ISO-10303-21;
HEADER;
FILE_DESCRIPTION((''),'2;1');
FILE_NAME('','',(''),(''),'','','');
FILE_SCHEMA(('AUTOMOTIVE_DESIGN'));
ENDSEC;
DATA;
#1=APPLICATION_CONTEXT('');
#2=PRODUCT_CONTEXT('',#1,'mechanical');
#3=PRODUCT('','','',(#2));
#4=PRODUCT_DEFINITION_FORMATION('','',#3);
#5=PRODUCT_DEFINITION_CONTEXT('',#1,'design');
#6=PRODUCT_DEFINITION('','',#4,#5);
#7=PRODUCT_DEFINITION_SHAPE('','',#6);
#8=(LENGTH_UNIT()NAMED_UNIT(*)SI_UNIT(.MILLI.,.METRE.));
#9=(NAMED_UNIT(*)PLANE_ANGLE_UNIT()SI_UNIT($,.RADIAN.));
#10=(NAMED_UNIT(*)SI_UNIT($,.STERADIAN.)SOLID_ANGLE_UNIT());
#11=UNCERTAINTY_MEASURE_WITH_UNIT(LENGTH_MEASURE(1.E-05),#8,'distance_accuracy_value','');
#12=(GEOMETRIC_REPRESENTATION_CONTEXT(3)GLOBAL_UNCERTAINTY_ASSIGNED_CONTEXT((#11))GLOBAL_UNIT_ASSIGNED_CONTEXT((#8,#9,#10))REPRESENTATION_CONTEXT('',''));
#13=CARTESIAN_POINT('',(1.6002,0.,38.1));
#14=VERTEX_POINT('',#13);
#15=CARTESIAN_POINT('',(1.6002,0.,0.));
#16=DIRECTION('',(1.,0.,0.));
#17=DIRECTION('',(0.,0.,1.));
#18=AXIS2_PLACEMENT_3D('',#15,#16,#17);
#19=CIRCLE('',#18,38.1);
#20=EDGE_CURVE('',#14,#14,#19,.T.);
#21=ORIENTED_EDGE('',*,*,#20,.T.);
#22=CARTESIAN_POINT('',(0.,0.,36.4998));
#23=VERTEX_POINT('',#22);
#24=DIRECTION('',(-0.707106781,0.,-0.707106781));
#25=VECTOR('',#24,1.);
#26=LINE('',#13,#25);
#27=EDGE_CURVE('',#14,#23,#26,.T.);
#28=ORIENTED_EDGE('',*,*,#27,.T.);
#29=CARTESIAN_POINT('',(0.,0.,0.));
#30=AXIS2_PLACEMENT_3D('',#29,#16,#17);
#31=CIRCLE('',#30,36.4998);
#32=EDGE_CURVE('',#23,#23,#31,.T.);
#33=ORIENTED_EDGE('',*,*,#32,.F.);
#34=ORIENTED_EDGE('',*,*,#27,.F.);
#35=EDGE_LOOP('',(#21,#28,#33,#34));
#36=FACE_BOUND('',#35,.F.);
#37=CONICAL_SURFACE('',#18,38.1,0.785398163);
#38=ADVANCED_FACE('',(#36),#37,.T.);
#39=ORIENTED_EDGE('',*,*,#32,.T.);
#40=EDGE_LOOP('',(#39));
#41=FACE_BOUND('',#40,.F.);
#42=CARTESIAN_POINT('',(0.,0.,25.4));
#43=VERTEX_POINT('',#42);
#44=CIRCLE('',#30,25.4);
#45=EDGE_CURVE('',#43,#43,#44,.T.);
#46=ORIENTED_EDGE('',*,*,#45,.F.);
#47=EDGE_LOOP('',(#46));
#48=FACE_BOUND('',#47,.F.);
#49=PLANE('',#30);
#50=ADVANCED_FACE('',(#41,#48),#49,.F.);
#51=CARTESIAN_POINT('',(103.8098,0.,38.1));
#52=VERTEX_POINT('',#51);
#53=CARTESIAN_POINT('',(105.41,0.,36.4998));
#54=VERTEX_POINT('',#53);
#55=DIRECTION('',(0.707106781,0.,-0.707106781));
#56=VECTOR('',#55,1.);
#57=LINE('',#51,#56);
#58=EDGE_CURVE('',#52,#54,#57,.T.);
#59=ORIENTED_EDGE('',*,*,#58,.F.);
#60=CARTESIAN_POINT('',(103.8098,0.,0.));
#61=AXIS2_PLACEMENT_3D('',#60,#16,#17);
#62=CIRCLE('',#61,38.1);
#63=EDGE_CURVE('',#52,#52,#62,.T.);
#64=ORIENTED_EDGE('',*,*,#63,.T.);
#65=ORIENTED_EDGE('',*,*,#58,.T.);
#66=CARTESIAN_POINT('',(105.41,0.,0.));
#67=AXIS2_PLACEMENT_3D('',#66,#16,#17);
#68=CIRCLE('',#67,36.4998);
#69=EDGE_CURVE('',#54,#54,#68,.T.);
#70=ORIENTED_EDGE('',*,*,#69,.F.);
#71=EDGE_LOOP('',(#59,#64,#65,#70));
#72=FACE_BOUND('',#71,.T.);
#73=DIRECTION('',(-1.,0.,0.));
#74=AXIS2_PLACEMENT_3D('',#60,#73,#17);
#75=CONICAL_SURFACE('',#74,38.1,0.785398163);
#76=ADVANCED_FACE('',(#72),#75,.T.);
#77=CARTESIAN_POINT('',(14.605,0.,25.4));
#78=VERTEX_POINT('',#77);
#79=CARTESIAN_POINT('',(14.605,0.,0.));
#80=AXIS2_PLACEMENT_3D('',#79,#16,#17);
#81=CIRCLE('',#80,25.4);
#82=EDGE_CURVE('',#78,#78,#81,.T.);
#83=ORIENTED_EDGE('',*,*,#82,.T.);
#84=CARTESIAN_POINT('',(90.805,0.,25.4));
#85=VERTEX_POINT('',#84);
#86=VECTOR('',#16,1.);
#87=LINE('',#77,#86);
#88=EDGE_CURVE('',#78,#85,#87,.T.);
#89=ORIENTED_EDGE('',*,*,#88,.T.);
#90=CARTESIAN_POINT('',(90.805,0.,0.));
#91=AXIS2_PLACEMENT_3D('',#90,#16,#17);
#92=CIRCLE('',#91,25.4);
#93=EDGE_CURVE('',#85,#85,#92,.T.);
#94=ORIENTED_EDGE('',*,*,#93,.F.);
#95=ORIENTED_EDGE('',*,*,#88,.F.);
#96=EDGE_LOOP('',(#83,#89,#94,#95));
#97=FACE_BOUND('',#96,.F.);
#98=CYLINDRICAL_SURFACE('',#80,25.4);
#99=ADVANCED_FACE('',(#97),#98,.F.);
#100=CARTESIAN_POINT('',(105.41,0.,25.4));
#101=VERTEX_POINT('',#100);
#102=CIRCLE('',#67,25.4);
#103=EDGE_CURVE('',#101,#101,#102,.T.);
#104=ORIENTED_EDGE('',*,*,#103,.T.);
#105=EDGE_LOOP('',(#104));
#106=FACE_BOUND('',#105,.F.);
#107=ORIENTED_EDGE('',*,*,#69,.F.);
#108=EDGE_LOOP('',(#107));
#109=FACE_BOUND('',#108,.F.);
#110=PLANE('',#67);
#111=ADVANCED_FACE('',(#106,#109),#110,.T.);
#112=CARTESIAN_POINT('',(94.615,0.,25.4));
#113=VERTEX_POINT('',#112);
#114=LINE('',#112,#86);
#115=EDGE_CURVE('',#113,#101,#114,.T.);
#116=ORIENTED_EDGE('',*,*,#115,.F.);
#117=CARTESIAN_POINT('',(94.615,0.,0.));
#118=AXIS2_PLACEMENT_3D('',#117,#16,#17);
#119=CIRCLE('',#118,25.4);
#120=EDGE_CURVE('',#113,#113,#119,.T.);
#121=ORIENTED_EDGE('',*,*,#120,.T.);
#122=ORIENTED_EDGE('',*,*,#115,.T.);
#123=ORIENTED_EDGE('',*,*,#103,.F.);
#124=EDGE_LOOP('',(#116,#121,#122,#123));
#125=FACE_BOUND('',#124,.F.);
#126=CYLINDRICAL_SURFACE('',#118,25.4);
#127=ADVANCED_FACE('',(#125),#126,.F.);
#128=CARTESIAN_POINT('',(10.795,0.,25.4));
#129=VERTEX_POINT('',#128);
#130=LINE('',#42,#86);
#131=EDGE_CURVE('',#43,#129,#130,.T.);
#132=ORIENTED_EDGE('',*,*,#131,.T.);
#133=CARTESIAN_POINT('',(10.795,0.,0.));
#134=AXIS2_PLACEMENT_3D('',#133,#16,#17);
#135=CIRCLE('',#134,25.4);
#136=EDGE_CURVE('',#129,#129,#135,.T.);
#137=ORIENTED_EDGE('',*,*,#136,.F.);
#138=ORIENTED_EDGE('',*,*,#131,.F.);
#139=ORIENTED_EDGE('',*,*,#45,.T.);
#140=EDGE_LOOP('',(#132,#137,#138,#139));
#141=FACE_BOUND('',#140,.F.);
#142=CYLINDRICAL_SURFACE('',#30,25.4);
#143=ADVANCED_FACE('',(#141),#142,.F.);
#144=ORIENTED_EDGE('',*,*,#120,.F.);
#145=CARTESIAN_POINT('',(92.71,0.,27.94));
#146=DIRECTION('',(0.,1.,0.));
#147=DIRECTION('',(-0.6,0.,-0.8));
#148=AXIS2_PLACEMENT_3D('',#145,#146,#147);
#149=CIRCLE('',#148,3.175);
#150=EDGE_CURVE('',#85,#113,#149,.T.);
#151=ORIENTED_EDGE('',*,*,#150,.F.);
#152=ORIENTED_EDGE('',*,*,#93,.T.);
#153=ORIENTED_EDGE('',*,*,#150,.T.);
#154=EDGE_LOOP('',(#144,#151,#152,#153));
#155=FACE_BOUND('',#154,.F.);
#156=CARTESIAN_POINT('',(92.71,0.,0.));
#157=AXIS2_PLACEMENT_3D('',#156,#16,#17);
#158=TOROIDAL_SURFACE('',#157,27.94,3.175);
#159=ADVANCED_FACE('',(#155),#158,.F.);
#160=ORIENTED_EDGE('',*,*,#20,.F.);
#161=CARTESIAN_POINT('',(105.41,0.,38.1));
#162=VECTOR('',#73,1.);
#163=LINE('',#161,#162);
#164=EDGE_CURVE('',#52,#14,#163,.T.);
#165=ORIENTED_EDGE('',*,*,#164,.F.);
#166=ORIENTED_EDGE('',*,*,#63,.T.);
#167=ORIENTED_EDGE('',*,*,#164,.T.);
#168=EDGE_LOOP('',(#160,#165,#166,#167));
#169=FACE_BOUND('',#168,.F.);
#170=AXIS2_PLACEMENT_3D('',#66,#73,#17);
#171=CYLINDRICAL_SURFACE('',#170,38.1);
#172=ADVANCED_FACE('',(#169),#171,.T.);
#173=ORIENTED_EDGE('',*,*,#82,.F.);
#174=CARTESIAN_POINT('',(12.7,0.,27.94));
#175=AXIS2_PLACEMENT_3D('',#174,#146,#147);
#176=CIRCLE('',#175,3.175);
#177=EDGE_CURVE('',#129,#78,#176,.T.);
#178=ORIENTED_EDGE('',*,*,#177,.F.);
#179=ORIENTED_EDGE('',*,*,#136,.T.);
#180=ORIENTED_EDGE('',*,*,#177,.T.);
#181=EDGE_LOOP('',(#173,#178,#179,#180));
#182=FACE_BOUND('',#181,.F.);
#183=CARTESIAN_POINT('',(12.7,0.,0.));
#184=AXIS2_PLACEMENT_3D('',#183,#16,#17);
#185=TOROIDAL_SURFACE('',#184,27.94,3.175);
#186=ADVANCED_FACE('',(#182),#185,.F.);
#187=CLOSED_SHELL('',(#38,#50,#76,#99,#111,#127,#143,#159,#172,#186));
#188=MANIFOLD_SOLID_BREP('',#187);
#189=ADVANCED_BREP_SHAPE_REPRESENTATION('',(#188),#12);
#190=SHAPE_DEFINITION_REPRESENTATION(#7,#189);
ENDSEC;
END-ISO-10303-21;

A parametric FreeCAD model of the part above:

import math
import FreeCAD as App
import Part
import Sketcher
from FreeCAD import Vector
Q = App.Units.Quantity


def edges_at(feature, points):
    """Names of the edges that pass closest to the given points."""
    edges = feature.Shape.Edges
    near = lambda p: min(range(len(edges)), key=lambda i: edges[i].distToShape(Part.Vertex(*p))[0])
    return sorted({f"Edge{near(p) + 1}" for p in points})

doc = App.newDocument("Part")
body = doc.addObject("PartDesign::Body", "Body")

# Sketch on XZ plane
sketch1 = body.newObject("Sketcher::SketchObject", "Sketch")
sketch1.AttachmentSupport = (doc.getObject("XZ_Plane"), [""])
sketch1.MapMode = "FlatFace"
sketch1.addGeometry(Part.LineSegment(Vector(105.4, 38.1, 0), Vector(0, 38.1, 0)), False)
sketch1.addGeometry(Part.LineSegment(Vector(0, 38.1, 0), Vector(0, 25.4, 0)), False)
sketch1.addGeometry(Part.LineSegment(Vector(0, 25.4, 0), Vector(10.8, 25.4, 0)), False)
sketch1.addGeometry(Part.ArcOfCircle(Part.Circle(Vector(12.7, 27.9, 0), Vector(0, 0, 1), 3.2), math.radians(-53), math.radians(233)), False)
sketch1.addGeometry(Part.LineSegment(Vector(14.6, 25.4, 0), Vector(90.8, 25.4, 0)), False)
sketch1.addGeometry(Part.ArcOfCircle(Part.Circle(Vector(92.7, 27.9, 0), Vector(0, 0, 1), 3.2), math.radians(-53), math.radians(233)), False)
sketch1.addGeometry(Part.LineSegment(Vector(94.6, 25.4, 0), Vector(105.4, 25.4, 0)), False)
sketch1.addGeometry(Part.LineSegment(Vector(105.4, 25.4, 0), Vector(105.4, 38.1, 0)), False)
sketch1.addConstraint(Sketcher.Constraint("Coincident", 0, 2, 1, 1))
sketch1.addConstraint(Sketcher.Constraint("Coincident", 1, 2, 2, 1))
sketch1.addConstraint(Sketcher.Constraint("Coincident", 2, 2, 3, 2))
sketch1.addConstraint(Sketcher.Constraint("Coincident", 3, 1, 4, 1))
sketch1.addConstraint(Sketcher.Constraint("Coincident", 4, 2, 5, 2))
sketch1.addConstraint(Sketcher.Constraint("Coincident", 5, 1, 6, 1))
sketch1.addConstraint(Sketcher.Constraint("Coincident", 6, 2, 7, 1))
sketch1.addConstraint(Sketcher.Constraint("Coincident", 7, 2, 0, 1))
sketch1.addConstraint(Sketcher.Constraint("Horizontal", 0))
sketch1.addConstraint(Sketcher.Constraint("Vertical", 1))
sketch1.addConstraint(Sketcher.Constraint("Horizontal", 2))
sketch1.addConstraint(Sketcher.Constraint("Horizontal", 4))
sketch1.addConstraint(Sketcher.Constraint("Horizontal", 6))
sketch1.addConstraint(Sketcher.Constraint("Vertical", 7))
sketch1.addConstraint(Sketcher.Constraint("Equal", 3, 5))
sketch1.addConstraint(Sketcher.Constraint("PointOnObject", 0, 2, -2))
sketch1.addConstraint(Sketcher.Constraint("Horizontal", 3, 3, 5, 3))
sketch1.addConstraint(Sketcher.Constraint("Horizontal", 2, 2, 3, 1))
sketch1.addConstraint(Sketcher.Constraint("Horizontal", 4, 2, 5, 1))
sketch1.addConstraint(Sketcher.Constraint("Equal", 2, 6))
sketch1.addConstraint(Sketcher.Constraint("DistanceX", 4, 1, 4, 2, Q("3 in")))
sketch1.addConstraint(Sketcher.Constraint("DistanceY", 1, 2, 1, 1, Q("0.5 in")))
sketch1.addConstraint(Sketcher.Constraint("DistanceY", -1, 1, 1, 2, Q("1 in")))
sketch1.addConstraint(Sketcher.Constraint("Radius", 3, Q("0.125 in")))
sketch1.addConstraint(Sketcher.Constraint("DistanceX", 0, 2, 0, 1, Q("4.15 in")))
sketch1.addConstraint(Sketcher.Constraint("DistanceX", -1, 1, 3, 3, Q("0.5 in")))
revolution = body.newObject("PartDesign::Revolution", "Revolution")
revolution.Profile = sketch1
revolution.ReferenceAxis = (sketch1, ["H_Axis"])
revolution.Angle = 360
doc.recompute()

chamfer = body.newObject("PartDesign::Chamfer", "Chamfer")
chamfer.Base = (revolution, edges_at(revolution, [(105.41, 0, -38.1), (0, 0, -38.1)]))
chamfer.Size = Q("0.063 in")

doc.recompute()
